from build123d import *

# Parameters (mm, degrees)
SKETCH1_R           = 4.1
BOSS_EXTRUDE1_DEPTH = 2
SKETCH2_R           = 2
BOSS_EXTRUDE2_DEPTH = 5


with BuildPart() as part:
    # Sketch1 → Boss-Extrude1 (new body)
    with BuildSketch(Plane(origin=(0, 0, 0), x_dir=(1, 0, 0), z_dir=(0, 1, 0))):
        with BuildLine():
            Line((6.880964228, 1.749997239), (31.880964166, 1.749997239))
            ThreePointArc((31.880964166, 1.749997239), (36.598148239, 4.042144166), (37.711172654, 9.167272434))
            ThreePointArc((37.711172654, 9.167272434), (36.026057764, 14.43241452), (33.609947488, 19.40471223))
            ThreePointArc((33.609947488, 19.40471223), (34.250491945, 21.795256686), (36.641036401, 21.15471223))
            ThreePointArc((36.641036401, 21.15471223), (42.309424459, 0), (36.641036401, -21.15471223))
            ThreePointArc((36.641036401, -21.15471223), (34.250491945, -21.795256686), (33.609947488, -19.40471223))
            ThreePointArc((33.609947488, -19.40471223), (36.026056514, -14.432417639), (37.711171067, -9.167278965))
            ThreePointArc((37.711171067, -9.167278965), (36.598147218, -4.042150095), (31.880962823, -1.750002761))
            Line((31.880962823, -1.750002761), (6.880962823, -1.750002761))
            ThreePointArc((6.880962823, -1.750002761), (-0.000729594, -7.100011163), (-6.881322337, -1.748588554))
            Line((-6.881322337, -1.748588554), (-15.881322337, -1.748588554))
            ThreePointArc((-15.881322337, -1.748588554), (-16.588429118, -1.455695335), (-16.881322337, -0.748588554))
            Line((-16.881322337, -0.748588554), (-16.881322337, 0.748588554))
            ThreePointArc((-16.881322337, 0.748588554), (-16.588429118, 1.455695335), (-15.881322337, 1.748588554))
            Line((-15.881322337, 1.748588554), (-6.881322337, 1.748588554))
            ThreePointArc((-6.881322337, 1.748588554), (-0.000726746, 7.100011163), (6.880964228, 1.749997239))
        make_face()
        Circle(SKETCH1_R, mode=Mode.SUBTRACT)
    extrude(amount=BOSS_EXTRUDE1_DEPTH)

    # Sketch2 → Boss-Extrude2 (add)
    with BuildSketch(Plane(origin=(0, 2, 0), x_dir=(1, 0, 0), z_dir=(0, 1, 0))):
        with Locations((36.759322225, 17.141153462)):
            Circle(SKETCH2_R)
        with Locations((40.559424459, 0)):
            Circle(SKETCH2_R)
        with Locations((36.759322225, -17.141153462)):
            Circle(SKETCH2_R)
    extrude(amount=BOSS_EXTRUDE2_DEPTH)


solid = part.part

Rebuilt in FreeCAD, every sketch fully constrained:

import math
import FreeCAD as App
import Part
import Sketcher
from FreeCAD import Vector

doc = App.newDocument("Part")
body = doc.addObject("PartDesign::Body", "Body")

# Sketch on XZ plane
sketch1 = body.newObject("Sketcher::SketchObject", "Sketch")
sketch1.AttachmentSupport = (doc.getObject("XZ_Plane"), [""])
sketch1.MapMode = "FlatFace"
sketch1.addGeometry(Part.LineSegment(Vector(31.880964, -1.749997, 0), Vector(6.880964, -1.749997, 0)), False)
sketch1.addGeometry(Part.ArcOfCircle(Part.Circle(Vector(0, 0, 0), Vector(0, 0, 1), 7.100011), math.radians(-165.742528), math.radians(-14.269201)), False)
sketch1.addGeometry(Part.LineSegment(Vector(-6.881322, -1.748589, 0), Vector(-15.881322, -1.748589, 0)), False)
sketch1.addGeometry(Part.ArcOfCircle(Part.Circle(Vector(-15.881322, -0.748589, 0), Vector(0, 0, 1), 1), math.radians(-180), math.radians(-90)), False)
sketch1.addGeometry(Part.LineSegment(Vector(-16.881322, -0.748589, 0), Vector(-16.881322, 0.748589, 0)), False)
sketch1.addGeometry(Part.ArcOfCircle(Part.Circle(Vector(-15.881322, 0.748589, 0), Vector(0, 0, 1), 1), math.radians(90), math.radians(180)), False)
sketch1.addGeometry(Part.LineSegment(Vector(-15.881322, 1.748589, 0), Vector(-6.881322, 1.748589, 0)), False)
sketch1.addGeometry(Part.ArcOfCircle(Part.Circle(Vector(0, 0, 0), Vector(0, 0, 1), 7.100011), math.radians(14.269247), math.radians(165.742528)), False)
sketch1.addGeometry(Part.LineSegment(Vector(6.880963, 1.750003, 0), Vector(31.880963, 1.750003, 0)), False)
sketch1.addGeometry(Part.ArcOfCircle(Part.Circle(Vector(31.880963, 7.750003, 0), Vector(0, 0, 1), 6), math.radians(-90), math.radians(13.663118)), False)
sketch1.addGeometry(Part.ArcOfCircle(Part.Circle(Vector(0, 0, 0), Vector(0, 0, 1), 38.809424), math.radians(13.663118), math.radians(30)), False)
sketch1.addGeometry(Part.ArcOfCircle(Part.Circle(Vector(35.125492, 20.279712, 0), Vector(0, 0, 1), 1.75), math.radians(30), math.radians(210)), False)
sketch1.addGeometry(Part.ArcOfCircle(Part.Circle(Vector(0, 0, 0), Vector(0, 0, 1), 42.309424), math.radians(-30), math.radians(30)), False)
sketch1.addGeometry(Part.ArcOfCircle(Part.Circle(Vector(35.125492, -20.279712, 0), Vector(0, 0, 1), 1.75), math.radians(150), math.radians(330)), False)
sketch1.addGeometry(Part.ArcOfCircle(Part.Circle(Vector(0, 0, 0), Vector(0, 0, 1), 38.809424), math.radians(-30), math.radians(-13.663108)), False)
sketch1.addGeometry(Part.ArcOfCircle(Part.Circle(Vector(31.880964, -7.749997, 0), Vector(0, 0, 1), 6), math.radians(-13.663108), math.radians(90)), False)
sketch1.addGeometry(Part.Circle(Vector(0, 0, 0), Vector(0, 0, 1), 4.1), False)
sketch1.addConstraint(Sketcher.Constraint("Coincident", 0, 2, 1, 2))
sketch1.addConstraint(Sketcher.Constraint("Coincident", 1, 1, 2, 1))
sketch1.addConstraint(Sketcher.Constraint("Tangent", 2, 2, 3, 2))
sketch1.addConstraint(Sketcher.Constraint("Tangent", 3, 1, 4, 1))
sketch1.addConstraint(Sketcher.Constraint("Tangent", 4, 2, 5, 2))
sketch1.addConstraint(Sketcher.Constraint("Tangent", 5, 1, 6, 1))
sketch1.addConstraint(Sketcher.Constraint("Coincident", 6, 2, 7, 2))
sketch1.addConstraint(Sketcher.Constraint("Coincident", 7, 1, 8, 1))
sketch1.addConstraint(Sketcher.Constraint("Tangent", 8, 2, 9, 1))
sketch1.addConstraint(Sketcher.Constraint("Tangent", 9, 2, 10, 1))
sketch1.addConstraint(Sketcher.Constraint("Tangent", 10, 2, 11, 2))
sketch1.addConstraint(Sketcher.Constraint("Tangent", 11, 1, 12, 2))
sketch1.addConstraint(Sketcher.Constraint("Tangent", 12, 1, 13, 2))
sketch1.addConstraint(Sketcher.Constraint("Tangent", 13, 1, 14, 1))
sketch1.addConstraint(Sketcher.Constraint("Tangent", 14, 2, 15, 1))
sketch1.addConstraint(Sketcher.Constraint("Tangent", 15, 2, 0, 1))
sketch1.addConstraint(Sketcher.Constraint("Horizontal", 0))
sketch1.addConstraint(Sketcher.Constraint("Horizontal", 2))
sketch1.addConstraint(Sketcher.Constraint("Vertical", 4))
sketch1.addConstraint(Sketcher.Constraint("Horizontal", 6))
sketch1.addConstraint(Sketcher.Constraint("Horizontal", 8))
sketch1.addConstraint(Sketcher.Constraint("Coincident", 1, 3, -1, 1))
sketch1.addConstraint(Sketcher.Constraint("Coincident", 7, 3, -1, 1))
sketch1.addConstraint(Sketcher.Constraint("Coincident", 10, 3, -1, 1))
sketch1.addConstraint(Sketcher.Constraint("Coincident", 12, 3, -1, 1))
sketch1.addConstraint(Sketcher.Constraint("Coincident", 14, 3, -1, 1))
sketch1.addConstraint(Sketcher.Constraint("Coincident", 16, 3, -1, 1))
sketch1.addConstraint(Sketcher.Constraint("Equal", 3, 5))
sketch1.addConstraint(Sketcher.Constraint("Equal", 1, 7))
sketch1.addConstraint(Sketcher.Constraint("Equal", 11, 13))
sketch1.addConstraint(Sketcher.Constraint("Equal", 9, 15))
sketch1.addConstraint(Sketcher.Constraint("Vertical", 11, 3, 13, 3))
sketch1.addConstraint(Sketcher.Constraint("Vertical", 9, 3, 15, 3))
sketch1.addConstraint(Sketcher.Constraint("Vertical", 1, 1, 6, 2))
sketch1.addConstraint(Sketcher.Constraint("Radius", 3, 1.0))
sketch1.addConstraint(Sketcher.Constraint("Radius", 9, 6.0))
sketch1.addConstraint(Sketcher.Constraint("Diameter", 16, 8.2))
sketch1.addConstraint(Sketcher.Constraint("DistanceX", 0, 2, 0, 1, 25.0))
sketch1.addConstraint(Sketcher.Constraint("DistanceX", 2, 2, 2, 1, 9.0))
sketch1.addConstraint(Sketcher.Constraint("Radius", 11, 1.75))
sketch1.addConstraint(Sketcher.Constraint("DistanceY", 15, 3, 9, 3, 15.5))
sketch1.addConstraint(Sketcher.Constraint("Radius", 1, 7.100011))
sketch1.addConstraint(Sketcher.Constraint("DistanceY", 11, 3, 11, 1, 0.875))
sketch1.addConstraint(Sketcher.Constraint("DistanceY", 4, 1, 4, 2, 1.497177))
pad1 = body.newObject("PartDesign::Pad", "Pad")
pad1.Profile = sketch1
pad1.Length = 2
pad1.Reversed = True

# Sketch on XZ plane
sketch2 = body.newObject("Sketcher::SketchObject", "Sketch001")
sketch2.AttachmentSupport = (doc.getObject("XZ_Plane"), [""])
sketch2.MapMode = "FlatFace"
sketch2.AttachmentOffset = App.Placement(Vector(0, 0, -2), App.Rotation())
sketch2.addGeometry(Part.Circle(Vector(36.759322, -17.141153, 0), Vector(0, 0, 1), 2), False)
sketch2.addGeometry(Part.Circle(Vector(40.559424, 0, 0), Vector(0, 0, 1), 2), False)
sketch2.addGeometry(Part.Circle(Vector(36.759322, 17.141153, 0), Vector(0, 0, 1), 2), False)
sketch2.addConstraint(Sketcher.Constraint("Equal", 0, 1))
sketch2.addConstraint(Sketcher.Constraint("Equal", 1, 2))
sketch2.addConstraint(Sketcher.Constraint("Symmetric", 0, 3, 2, 3, -1))
sketch2.addConstraint(Sketcher.Constraint("PointOnObject", 1, 3, -1))
sketch2.addConstraint(Sketcher.Constraint("Diameter", 0, 4.0))
sketch2.addConstraint(Sketcher.Constraint("DistanceX", -1, 1, 0, 3, 36.759322))
sketch2.addConstraint(Sketcher.Constraint("DistanceY", 0, 3, -1, 1, 17.141153))
sketch2.addConstraint(Sketcher.Constraint("DistanceX", -1, 1, 1, 3, 40.559424))
pad2 = body.newObject("PartDesign::Pad", "Pad001")
pad2.Profile = sketch2
pad2.Length = 5
pad2.Reversed = True

doc.recompute()
